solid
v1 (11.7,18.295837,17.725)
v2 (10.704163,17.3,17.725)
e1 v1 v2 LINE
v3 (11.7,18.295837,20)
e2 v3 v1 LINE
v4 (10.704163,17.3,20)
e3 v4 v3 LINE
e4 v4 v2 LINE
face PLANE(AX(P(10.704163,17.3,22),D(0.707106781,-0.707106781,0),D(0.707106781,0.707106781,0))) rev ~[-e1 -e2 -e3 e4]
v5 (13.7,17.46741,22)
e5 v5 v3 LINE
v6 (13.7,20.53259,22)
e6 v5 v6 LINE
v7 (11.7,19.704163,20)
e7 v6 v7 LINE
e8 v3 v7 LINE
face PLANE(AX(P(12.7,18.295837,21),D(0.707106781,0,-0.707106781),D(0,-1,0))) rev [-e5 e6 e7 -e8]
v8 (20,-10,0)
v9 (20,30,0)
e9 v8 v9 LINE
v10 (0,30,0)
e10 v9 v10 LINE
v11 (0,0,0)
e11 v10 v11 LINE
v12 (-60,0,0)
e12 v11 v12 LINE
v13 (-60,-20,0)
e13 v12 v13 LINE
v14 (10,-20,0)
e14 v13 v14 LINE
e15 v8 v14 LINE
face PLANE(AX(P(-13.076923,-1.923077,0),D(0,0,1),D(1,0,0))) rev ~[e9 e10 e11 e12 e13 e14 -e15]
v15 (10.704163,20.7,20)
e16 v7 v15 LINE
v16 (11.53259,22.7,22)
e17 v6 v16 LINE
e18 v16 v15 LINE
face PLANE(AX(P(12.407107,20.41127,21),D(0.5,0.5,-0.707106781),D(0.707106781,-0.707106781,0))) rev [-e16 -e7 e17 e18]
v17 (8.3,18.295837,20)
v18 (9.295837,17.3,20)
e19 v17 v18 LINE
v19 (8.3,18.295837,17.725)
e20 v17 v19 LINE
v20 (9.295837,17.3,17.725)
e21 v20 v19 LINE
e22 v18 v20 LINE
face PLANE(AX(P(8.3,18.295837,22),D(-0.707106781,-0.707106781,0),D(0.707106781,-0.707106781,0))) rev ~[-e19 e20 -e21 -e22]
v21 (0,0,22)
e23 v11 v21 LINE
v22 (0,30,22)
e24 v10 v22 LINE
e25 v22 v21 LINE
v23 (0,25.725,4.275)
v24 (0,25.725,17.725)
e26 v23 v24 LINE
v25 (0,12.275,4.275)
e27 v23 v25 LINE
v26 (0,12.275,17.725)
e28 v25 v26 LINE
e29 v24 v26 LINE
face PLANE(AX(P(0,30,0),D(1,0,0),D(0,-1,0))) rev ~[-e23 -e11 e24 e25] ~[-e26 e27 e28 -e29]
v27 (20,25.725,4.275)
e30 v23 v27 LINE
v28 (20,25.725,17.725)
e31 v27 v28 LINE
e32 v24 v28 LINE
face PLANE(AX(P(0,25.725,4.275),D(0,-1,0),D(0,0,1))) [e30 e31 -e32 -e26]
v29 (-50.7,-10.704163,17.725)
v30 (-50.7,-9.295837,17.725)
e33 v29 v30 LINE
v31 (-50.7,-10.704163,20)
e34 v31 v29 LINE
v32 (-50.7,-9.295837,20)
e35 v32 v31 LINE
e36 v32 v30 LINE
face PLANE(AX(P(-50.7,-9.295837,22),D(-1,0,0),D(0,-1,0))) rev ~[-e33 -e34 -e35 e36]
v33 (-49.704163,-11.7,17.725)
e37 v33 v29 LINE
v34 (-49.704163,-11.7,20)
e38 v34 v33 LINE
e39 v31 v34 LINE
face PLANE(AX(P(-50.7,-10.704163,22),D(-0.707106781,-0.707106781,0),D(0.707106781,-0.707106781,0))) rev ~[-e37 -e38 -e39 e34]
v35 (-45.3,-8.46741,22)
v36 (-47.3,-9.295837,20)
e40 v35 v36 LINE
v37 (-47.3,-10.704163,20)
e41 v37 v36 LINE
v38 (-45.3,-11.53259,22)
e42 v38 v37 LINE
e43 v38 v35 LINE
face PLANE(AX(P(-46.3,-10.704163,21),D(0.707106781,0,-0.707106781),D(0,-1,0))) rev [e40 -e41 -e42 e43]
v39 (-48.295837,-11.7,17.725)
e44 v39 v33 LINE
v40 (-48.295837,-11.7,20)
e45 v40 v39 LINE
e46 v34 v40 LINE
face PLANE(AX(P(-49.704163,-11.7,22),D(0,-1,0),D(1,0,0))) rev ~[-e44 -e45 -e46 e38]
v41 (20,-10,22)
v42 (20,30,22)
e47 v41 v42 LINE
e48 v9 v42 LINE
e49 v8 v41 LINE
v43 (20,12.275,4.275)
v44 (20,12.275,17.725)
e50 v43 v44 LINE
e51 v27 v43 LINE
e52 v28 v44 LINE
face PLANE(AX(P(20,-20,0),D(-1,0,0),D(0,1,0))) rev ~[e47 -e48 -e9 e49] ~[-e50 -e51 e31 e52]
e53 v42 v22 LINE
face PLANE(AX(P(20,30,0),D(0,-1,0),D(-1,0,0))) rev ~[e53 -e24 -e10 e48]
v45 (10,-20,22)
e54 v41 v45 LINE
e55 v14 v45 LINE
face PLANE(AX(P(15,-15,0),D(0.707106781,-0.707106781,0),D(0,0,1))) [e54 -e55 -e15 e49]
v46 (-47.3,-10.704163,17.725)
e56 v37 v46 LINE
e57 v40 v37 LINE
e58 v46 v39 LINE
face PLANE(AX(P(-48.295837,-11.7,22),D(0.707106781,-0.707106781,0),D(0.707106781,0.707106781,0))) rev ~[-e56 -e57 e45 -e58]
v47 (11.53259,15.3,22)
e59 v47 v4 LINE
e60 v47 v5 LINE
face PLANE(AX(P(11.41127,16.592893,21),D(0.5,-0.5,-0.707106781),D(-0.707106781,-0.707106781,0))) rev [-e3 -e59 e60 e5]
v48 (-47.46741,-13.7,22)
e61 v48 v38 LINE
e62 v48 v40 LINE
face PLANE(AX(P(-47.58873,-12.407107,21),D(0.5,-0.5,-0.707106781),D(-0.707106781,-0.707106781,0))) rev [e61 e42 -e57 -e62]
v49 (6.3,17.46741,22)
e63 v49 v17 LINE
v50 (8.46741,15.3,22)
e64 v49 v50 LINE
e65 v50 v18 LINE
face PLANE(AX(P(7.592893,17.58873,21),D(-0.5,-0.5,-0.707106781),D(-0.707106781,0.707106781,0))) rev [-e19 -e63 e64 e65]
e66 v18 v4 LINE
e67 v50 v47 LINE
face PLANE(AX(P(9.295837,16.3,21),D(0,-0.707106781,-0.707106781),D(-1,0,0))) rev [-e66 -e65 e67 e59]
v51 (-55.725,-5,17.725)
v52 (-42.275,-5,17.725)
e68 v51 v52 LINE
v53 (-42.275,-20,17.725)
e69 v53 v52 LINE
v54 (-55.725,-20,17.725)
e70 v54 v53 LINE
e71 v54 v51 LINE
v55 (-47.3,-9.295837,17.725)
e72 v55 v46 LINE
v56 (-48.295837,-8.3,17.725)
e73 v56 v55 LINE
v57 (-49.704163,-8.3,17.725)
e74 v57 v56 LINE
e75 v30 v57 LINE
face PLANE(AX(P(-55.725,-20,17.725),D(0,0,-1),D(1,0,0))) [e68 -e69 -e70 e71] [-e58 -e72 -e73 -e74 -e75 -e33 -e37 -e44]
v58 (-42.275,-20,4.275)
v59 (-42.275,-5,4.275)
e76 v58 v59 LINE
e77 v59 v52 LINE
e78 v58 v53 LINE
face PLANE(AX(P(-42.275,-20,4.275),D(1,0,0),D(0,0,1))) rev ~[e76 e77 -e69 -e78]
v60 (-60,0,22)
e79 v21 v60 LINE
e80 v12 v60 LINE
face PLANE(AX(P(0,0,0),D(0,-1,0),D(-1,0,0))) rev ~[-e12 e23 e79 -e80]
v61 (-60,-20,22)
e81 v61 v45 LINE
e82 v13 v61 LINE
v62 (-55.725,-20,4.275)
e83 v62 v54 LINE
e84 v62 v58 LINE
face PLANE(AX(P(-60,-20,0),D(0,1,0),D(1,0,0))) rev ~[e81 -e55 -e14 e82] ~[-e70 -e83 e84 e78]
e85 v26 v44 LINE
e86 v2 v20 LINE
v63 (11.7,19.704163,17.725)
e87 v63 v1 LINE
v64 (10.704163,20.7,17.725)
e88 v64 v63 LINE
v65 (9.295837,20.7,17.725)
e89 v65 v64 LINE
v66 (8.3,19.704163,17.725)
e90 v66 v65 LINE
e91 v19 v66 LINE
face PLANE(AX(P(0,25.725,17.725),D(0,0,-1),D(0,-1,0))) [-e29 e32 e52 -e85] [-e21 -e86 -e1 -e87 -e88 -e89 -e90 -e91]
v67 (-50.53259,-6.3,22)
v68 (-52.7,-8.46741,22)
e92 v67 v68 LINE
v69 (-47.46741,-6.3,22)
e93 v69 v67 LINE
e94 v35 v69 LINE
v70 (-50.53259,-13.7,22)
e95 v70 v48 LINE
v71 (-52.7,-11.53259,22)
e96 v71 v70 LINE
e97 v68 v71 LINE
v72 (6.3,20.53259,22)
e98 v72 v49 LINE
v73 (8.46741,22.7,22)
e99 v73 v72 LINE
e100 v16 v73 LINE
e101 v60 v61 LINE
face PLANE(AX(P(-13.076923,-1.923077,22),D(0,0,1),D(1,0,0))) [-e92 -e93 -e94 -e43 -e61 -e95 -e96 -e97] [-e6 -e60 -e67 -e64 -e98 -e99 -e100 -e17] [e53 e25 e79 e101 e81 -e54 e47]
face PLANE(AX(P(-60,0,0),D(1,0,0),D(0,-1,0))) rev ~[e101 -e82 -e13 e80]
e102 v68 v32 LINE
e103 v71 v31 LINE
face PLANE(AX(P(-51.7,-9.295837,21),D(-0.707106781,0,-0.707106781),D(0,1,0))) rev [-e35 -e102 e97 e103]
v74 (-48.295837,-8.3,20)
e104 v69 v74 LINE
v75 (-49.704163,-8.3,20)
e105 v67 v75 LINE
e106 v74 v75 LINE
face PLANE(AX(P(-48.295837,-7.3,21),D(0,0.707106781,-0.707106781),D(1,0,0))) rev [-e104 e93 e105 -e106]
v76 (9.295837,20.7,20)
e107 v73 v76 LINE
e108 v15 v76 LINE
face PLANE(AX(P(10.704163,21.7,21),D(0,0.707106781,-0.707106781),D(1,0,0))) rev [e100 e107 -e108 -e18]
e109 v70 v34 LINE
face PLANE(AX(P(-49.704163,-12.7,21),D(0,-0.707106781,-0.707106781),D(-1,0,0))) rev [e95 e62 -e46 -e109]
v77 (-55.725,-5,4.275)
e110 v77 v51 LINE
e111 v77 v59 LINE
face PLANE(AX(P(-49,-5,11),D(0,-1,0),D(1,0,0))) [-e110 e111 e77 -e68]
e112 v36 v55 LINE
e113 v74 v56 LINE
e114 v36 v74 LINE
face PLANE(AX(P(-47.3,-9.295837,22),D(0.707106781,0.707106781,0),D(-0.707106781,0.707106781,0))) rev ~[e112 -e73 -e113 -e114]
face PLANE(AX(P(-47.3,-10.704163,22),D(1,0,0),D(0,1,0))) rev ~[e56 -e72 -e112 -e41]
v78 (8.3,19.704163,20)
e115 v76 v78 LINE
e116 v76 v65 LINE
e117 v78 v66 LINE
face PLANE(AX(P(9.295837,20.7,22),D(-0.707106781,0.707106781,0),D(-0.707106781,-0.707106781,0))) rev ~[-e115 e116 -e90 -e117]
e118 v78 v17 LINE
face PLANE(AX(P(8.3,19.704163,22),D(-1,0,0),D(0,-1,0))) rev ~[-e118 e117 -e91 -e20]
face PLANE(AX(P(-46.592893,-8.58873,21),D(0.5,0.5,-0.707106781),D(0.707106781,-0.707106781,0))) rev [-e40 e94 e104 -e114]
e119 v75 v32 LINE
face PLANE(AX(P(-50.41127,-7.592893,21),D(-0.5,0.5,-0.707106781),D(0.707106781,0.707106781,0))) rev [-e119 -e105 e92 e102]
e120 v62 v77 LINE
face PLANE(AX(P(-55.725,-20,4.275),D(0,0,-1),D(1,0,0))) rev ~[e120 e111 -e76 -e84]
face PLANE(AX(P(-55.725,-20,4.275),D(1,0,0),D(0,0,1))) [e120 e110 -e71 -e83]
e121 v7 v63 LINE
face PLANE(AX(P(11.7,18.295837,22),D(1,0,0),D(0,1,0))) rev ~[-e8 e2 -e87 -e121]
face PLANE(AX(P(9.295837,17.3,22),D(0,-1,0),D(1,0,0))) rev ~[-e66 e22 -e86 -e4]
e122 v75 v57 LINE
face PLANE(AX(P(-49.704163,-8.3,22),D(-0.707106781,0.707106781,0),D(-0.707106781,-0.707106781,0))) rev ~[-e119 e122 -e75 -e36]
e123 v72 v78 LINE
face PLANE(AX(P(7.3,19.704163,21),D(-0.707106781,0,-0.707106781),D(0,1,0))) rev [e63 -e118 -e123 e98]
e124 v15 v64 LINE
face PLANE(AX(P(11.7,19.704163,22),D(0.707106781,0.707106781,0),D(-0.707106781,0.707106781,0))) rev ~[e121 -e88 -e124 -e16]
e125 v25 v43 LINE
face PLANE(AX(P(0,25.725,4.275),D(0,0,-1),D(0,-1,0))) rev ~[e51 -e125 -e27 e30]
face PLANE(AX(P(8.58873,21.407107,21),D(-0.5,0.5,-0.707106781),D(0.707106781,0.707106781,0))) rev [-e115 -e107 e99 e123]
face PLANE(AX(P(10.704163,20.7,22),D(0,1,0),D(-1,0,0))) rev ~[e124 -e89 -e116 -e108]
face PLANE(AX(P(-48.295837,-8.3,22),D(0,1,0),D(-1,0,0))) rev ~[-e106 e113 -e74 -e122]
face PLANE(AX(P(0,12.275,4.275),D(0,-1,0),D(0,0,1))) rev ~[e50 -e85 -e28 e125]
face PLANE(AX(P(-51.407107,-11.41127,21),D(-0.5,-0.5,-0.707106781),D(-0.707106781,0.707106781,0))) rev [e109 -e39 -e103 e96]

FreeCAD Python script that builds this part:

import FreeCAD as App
import Part
import Sketcher
from FreeCAD import Vector
Q = App.Units.Quantity


def edges_at(feature, points):
    """Names of the edges that pass closest to the given points."""
    edges = feature.Shape.Edges
    near = lambda p: min(range(len(edges)), key=lambda i: edges[i].distToShape(Part.Vertex(*p))[0])
    return sorted({f"Edge{near(p) + 1}" for p in points})

doc = App.newDocument("Part")
body = doc.addObject("PartDesign::Body", "Body")

sketch1 = body.newObject("Sketcher::SketchObject", "Sketch")
sketch1.AttachmentSupport = (doc.getObject("XY_Plane"), [""])
sketch1.MapMode = "FlatFace"
sketch1.addGeometry([
    Part.LineSegment(Vector(0, 30, 0), Vector(0, 0, 0)),
    Part.LineSegment(Vector(0, 0, 0), Vector(-60, 0, 0)),
    Part.LineSegment(Vector(-60, 0, 0), Vector(-60, -20, 0)),
    Part.LineSegment(Vector(-60, -20, 0), Vector(20, -20, 0)),
    Part.LineSegment(Vector(20, -20, 0), Vector(20, 30, 0)),
    Part.LineSegment(Vector(20, 30, 0), Vector(0, 30, 0)),
], False)
sketch1.addConstraint([
    Sketcher.Constraint("Coincident", 0, 2, 1, 1),
    Sketcher.Constraint("Coincident", 1, 2, 2, 1),
    Sketcher.Constraint("Coincident", 2, 2, 3, 1),
    Sketcher.Constraint("Coincident", 3, 2, 4, 1),
    Sketcher.Constraint("Coincident", 4, 2, 5, 1),
    Sketcher.Constraint("Coincident", 5, 2, 0, 1),
    Sketcher.Constraint("Vertical", 0),
    Sketcher.Constraint("Horizontal", 1),
    Sketcher.Constraint("Vertical", 2),
    Sketcher.Constraint("Horizontal", 3),
    Sketcher.Constraint("Vertical", 4),
    Sketcher.Constraint("Horizontal", 5),
    Sketcher.Constraint("Coincident", 0, 2, -1, 1),
    Sketcher.Constraint("Equal", 5, 2),
    Sketcher.Constraint("DistanceX", 1, 2, 1, 1, Q("60 mm")),
    Sketcher.Constraint("DistanceX", 3, 1, 3, 2, Q("80 mm")),
    Sketcher.Constraint("DistanceY", 0, 2, 0, 1, Q("30 mm")),
])
pad1 = body.newObject("PartDesign::Pad", "Pad")
pad1.Profile = sketch1
pad1.Length = 22

sketch2 = body.newObject("Sketcher::SketchObject", "Sketch001")
sketch2.AttachmentSupport = (doc.getObject("YZ_Plane"), [""])
sketch2.MapMode = "FlatFace"
sketch2.addGeometry([
    Part.LineSegment(Vector(25.725, 17.725, 0), Vector(25.725, 4.275, 0)),
    Part.LineSegment(Vector(25.725, 4.275, 0), Vector(12.275, 4.275, 0)),
    Part.LineSegment(Vector(12.275, 4.275, 0), Vector(12.275, 17.725, 0)),
    Part.LineSegment(Vector(12.275, 17.725, 0), Vector(25.725, 17.725, 0)),
], False)
sketch2.addConstraint([
    Sketcher.Constraint("Coincident", 0, 2, 1, 1),
    Sketcher.Constraint("Coincident", 1, 2, 2, 1),
    Sketcher.Constraint("Coincident", 2, 2, 3, 1),
    Sketcher.Constraint("Coincident", 3, 2, 0, 1),
    Sketcher.Constraint("Vertical", 0),
    Sketcher.Constraint("Horizontal", 1),
    Sketcher.Constraint("Vertical", 2),
    Sketcher.Constraint("Horizontal", 3),
    Sketcher.Constraint("Equal", 3, 0),
    Sketcher.Constraint("DistanceX", 1, 2, 1, 1, Q("13.45 mm")),
    Sketcher.Constraint("DistanceX", -1, 1, 0, 2, Q("25.725 mm")),
    Sketcher.Constraint("DistanceY", -1, 1, 0, 2, Q("4.275 mm")),
])
pocket1 = body.newObject("PartDesign::Pocket", "Pocket")
pocket1.Profile = sketch2
pocket1.Type = "ThroughAll"
pocket1.Reversed = True

sketch3 = body.newObject("Sketcher::SketchObject", "Sketch002")
sketch3.AttachmentSupport = (doc.getObject("XZ_Plane"), [""])
sketch3.MapMode = "FlatFace"
sketch3.AttachmentOffset = App.Placement(Vector(0, 0, 20), App.Rotation())
sketch3.addGeometry([
    Part.LineSegment(Vector(-55.725, 17.725, 0), Vector(-55.725, 4.275, 0)),
    Part.LineSegment(Vector(-55.725, 4.275, 0), Vector(-42.275, 4.275, 0)),
    Part.LineSegment(Vector(-42.275, 4.275, 0), Vector(-42.275, 17.725, 0)),
    Part.LineSegment(Vector(-42.275, 17.725, 0), Vector(-55.725, 17.725, 0)),
], False)
sketch3.addConstraint([
    Sketcher.Constraint("Coincident", 0, 2, 1, 1),
    Sketcher.Constraint("Coincident", 1, 2, 2, 1),
    Sketcher.Constraint("Coincident", 2, 2, 3, 1),
    Sketcher.Constraint("Coincident", 3, 2, 0, 1),
    Sketcher.Constraint("Vertical", 0),
    Sketcher.Constraint("Horizontal", 1),
    Sketcher.Constraint("Vertical", 2),
    Sketcher.Constraint("Horizontal", 3),
    Sketcher.Constraint("Equal", 3, 0),
    Sketcher.Constraint("DistanceX", 1, 1, 1, 2, Q("13.45 mm")),
    Sketcher.Constraint("DistanceX", 0, 2, -1, 1, Q("55.725 mm")),
    Sketcher.Constraint("DistanceY", -1, 1, 0, 2, Q("4.275 mm")),
])
pocket2 = body.newObject("PartDesign::Pocket", "Pocket001")
pocket2.Profile = sketch3
pocket2.Length = 15
doc.recompute()

chamfer = body.newObject("PartDesign::Chamfer", "Chamfer")
chamfer.Base = (pocket2, edges_at(pocket2, [(20, -20, 11)]))
chamfer.Size = 10

sketch4 = body.newObject("Sketcher::SketchObject", "Sketch003")
sketch4.AttachmentSupport = (doc.getObject("XY_Plane"), [""])
sketch4.MapMode = "FlatFace"
sketch4.AttachmentOffset = App.Placement(Vector(0, 0, 22), App.Rotation())
sketch4.addGeometry([
    Part.LineSegment(Vector(9.295837, 17.3, 0), Vector(10.704163, 17.3, 0)),
    Part.LineSegment(Vector(10.704163, 17.3, 0), Vector(11.7, 18.295837, 0)),
    Part.LineSegment(Vector(11.7, 18.295837, 0), Vector(11.7, 19.704163, 0)),
    Part.LineSegment(Vector(11.7, 19.704163, 0), Vector(10.704163, 20.7, 0)),
    Part.LineSegment(Vector(10.704163, 20.7, 0), Vector(9.295837, 20.7, 0)),
    Part.LineSegment(Vector(9.295837, 20.7, 0), Vector(8.3, 19.704163, 0)),
    Part.LineSegment(Vector(8.3, 19.704163, 0), Vector(8.3, 18.295837, 0)),
    Part.LineSegment(Vector(8.3, 18.295837, 0), Vector(9.295837, 17.3, 0)),
    Part.LineSegment(Vector(-47.3, -10.704163, 0), Vector(-47.3, -9.295837, 0)),
    Part.LineSegment(Vector(-47.3, -9.295837, 0), Vector(-48.295837, -8.3, 0)),
    Part.LineSegment(Vector(-48.295837, -8.3, 0), Vector(-49.704163, -8.3, 0)),
    Part.LineSegment(Vector(-49.704163, -8.3, 0), Vector(-50.7, -9.295837, 0)),
    Part.LineSegment(Vector(-50.7, -9.295837, 0), Vector(-50.7, -10.704163, 0)),
    Part.LineSegment(Vector(-50.7, -10.704163, 0), Vector(-49.704163, -11.7, 0)),
    Part.LineSegment(Vector(-49.704163, -11.7, 0), Vector(-48.295837, -11.7, 0)),
    Part.LineSegment(Vector(-48.295837, -11.7, 0), Vector(-47.3, -10.704163, 0)),
], False)
sketch4.addConstraint([
    Sketcher.Constraint("Coincident", 0, 2, 1, 1),
    Sketcher.Constraint("Coincident", 1, 2, 2, 1),
    Sketcher.Constraint("Coincident", 2, 2, 3, 1),
    Sketcher.Constraint("Coincident", 3, 2, 4, 1),
    Sketcher.Constraint("Coincident", 4, 2, 5, 1),
    Sketcher.Constraint("Coincident", 5, 2, 6, 1),
    Sketcher.Constraint("Coincident", 6, 2, 7, 1),
    Sketcher.Constraint("Coincident", 7, 2, 0, 1),
    Sketcher.Constraint("Coincident", 8, 2, 9, 1),
    Sketcher.Constraint("Coincident", 9, 2, 10, 1),
    Sketcher.Constraint("Coincident", 10, 2, 11, 1),
    Sketcher.Constraint("Coincident", 11, 2, 12, 1),
    Sketcher.Constraint("Coincident", 12, 2, 13, 1),
    Sketcher.Constraint("Coincident", 13, 2, 14, 1),
    Sketcher.Constraint("Coincident", 14, 2, 15, 1),
    Sketcher.Constraint("Coincident", 15, 2, 8, 1),
    Sketcher.Constraint("Horizontal", 0),
    Sketcher.Constraint("Vertical", 2),
    Sketcher.Constraint("Horizontal", 4),
    Sketcher.Constraint("Vertical", 6),
    Sketcher.Constraint("Vertical", 8),
    Sketcher.Constraint("Horizontal", 10),
    Sketcher.Constraint("Vertical", 12),
    Sketcher.Constraint("Horizontal", 14),
    Sketcher.Constraint("Perpendicular", 1, 3),
    Sketcher.Constraint("Perpendicular", 3, 5),
    Sketcher.Constraint("Perpendicular", 5, 7),
    Sketcher.Constraint("Parallel", 7, 9),
    Sketcher.Constraint("Perpendicular", 9, 11),
    Sketcher.Constraint("Perpendicular", 11, 13),
    Sketcher.Constraint("Perpendicular", 13, 15),
    Sketcher.Constraint("Horizontal", 2, 2, 5, 2),
    Sketcher.Constraint("Horizontal", 1, 2, 6, 2),
    Sketcher.Constraint("Horizontal", 8, 2, 11, 2),
    Sketcher.Constraint("Horizontal", 12, 2, 15, 2),
    Sketcher.Constraint("Vertical", 0, 2, 3, 2),
    Sketcher.Constraint("Vertical", 4, 2, 7, 2),
    Sketcher.Constraint("Vertical", 10, 2, 13, 2),
    Sketcher.Constraint("Equal", 4, 10),
    Sketcher.Constraint("Equal", 14, 2),
    Sketcher.Constraint("Equal", 6, 8),
    Sketcher.Constraint("Equal", 7, 9),
    Sketcher.Constraint("DistanceY", 8, 2, 5, 2, Q("29 mm")),
    Sketcher.Constraint("DistanceX", 9, 2, 0, 2, Q("59 mm")),
    Sketcher.Constraint("DistanceY", -1, 1, 0, 2, Q("17.3 mm")),
    Sketcher.Constraint("DistanceX", -1, 1, 1, 2, Q("11.7 mm")),
    Sketcher.Constraint("DistanceY", -1, 1, 3, 2, Q("20.7 mm")),
    Sketcher.Constraint("DistanceX", 0, 1, 0, 2, Q("1.408326 mm")),
])
pocket3 = body.newObject("PartDesign::Pocket", "Pocket002")
pocket3.Profile = sketch4
pocket3.Length = 5
doc.recompute()

chamfer2 = body.newObject("PartDesign::Chamfer", "Chamfer001")
chamfer2.Base = (pocket3, edges_at(pocket3, [
    (-50.7, -10, 22),
    (-50.202, -8.798, 22),
    (-49, -8.3, 22),
    (-47.798, -8.798, 22),
    (-47.3, -10, 22),
    (-47.798, -11.202, 22),
    (-49, -11.7, 22),
    (-50.202, -11.202, 22),
    (8.3, 19, 22),
    (8.798, 20.202, 22),
    (10, 20.7, 22),
    (11.202, 20.202, 22),
    (11.7, 19, 22),
    (11.202, 17.798, 22),
    (10, 17.3, 22),
    (8.798, 17.798, 22),
]))
chamfer2.Size = 2

doc.recompute()
